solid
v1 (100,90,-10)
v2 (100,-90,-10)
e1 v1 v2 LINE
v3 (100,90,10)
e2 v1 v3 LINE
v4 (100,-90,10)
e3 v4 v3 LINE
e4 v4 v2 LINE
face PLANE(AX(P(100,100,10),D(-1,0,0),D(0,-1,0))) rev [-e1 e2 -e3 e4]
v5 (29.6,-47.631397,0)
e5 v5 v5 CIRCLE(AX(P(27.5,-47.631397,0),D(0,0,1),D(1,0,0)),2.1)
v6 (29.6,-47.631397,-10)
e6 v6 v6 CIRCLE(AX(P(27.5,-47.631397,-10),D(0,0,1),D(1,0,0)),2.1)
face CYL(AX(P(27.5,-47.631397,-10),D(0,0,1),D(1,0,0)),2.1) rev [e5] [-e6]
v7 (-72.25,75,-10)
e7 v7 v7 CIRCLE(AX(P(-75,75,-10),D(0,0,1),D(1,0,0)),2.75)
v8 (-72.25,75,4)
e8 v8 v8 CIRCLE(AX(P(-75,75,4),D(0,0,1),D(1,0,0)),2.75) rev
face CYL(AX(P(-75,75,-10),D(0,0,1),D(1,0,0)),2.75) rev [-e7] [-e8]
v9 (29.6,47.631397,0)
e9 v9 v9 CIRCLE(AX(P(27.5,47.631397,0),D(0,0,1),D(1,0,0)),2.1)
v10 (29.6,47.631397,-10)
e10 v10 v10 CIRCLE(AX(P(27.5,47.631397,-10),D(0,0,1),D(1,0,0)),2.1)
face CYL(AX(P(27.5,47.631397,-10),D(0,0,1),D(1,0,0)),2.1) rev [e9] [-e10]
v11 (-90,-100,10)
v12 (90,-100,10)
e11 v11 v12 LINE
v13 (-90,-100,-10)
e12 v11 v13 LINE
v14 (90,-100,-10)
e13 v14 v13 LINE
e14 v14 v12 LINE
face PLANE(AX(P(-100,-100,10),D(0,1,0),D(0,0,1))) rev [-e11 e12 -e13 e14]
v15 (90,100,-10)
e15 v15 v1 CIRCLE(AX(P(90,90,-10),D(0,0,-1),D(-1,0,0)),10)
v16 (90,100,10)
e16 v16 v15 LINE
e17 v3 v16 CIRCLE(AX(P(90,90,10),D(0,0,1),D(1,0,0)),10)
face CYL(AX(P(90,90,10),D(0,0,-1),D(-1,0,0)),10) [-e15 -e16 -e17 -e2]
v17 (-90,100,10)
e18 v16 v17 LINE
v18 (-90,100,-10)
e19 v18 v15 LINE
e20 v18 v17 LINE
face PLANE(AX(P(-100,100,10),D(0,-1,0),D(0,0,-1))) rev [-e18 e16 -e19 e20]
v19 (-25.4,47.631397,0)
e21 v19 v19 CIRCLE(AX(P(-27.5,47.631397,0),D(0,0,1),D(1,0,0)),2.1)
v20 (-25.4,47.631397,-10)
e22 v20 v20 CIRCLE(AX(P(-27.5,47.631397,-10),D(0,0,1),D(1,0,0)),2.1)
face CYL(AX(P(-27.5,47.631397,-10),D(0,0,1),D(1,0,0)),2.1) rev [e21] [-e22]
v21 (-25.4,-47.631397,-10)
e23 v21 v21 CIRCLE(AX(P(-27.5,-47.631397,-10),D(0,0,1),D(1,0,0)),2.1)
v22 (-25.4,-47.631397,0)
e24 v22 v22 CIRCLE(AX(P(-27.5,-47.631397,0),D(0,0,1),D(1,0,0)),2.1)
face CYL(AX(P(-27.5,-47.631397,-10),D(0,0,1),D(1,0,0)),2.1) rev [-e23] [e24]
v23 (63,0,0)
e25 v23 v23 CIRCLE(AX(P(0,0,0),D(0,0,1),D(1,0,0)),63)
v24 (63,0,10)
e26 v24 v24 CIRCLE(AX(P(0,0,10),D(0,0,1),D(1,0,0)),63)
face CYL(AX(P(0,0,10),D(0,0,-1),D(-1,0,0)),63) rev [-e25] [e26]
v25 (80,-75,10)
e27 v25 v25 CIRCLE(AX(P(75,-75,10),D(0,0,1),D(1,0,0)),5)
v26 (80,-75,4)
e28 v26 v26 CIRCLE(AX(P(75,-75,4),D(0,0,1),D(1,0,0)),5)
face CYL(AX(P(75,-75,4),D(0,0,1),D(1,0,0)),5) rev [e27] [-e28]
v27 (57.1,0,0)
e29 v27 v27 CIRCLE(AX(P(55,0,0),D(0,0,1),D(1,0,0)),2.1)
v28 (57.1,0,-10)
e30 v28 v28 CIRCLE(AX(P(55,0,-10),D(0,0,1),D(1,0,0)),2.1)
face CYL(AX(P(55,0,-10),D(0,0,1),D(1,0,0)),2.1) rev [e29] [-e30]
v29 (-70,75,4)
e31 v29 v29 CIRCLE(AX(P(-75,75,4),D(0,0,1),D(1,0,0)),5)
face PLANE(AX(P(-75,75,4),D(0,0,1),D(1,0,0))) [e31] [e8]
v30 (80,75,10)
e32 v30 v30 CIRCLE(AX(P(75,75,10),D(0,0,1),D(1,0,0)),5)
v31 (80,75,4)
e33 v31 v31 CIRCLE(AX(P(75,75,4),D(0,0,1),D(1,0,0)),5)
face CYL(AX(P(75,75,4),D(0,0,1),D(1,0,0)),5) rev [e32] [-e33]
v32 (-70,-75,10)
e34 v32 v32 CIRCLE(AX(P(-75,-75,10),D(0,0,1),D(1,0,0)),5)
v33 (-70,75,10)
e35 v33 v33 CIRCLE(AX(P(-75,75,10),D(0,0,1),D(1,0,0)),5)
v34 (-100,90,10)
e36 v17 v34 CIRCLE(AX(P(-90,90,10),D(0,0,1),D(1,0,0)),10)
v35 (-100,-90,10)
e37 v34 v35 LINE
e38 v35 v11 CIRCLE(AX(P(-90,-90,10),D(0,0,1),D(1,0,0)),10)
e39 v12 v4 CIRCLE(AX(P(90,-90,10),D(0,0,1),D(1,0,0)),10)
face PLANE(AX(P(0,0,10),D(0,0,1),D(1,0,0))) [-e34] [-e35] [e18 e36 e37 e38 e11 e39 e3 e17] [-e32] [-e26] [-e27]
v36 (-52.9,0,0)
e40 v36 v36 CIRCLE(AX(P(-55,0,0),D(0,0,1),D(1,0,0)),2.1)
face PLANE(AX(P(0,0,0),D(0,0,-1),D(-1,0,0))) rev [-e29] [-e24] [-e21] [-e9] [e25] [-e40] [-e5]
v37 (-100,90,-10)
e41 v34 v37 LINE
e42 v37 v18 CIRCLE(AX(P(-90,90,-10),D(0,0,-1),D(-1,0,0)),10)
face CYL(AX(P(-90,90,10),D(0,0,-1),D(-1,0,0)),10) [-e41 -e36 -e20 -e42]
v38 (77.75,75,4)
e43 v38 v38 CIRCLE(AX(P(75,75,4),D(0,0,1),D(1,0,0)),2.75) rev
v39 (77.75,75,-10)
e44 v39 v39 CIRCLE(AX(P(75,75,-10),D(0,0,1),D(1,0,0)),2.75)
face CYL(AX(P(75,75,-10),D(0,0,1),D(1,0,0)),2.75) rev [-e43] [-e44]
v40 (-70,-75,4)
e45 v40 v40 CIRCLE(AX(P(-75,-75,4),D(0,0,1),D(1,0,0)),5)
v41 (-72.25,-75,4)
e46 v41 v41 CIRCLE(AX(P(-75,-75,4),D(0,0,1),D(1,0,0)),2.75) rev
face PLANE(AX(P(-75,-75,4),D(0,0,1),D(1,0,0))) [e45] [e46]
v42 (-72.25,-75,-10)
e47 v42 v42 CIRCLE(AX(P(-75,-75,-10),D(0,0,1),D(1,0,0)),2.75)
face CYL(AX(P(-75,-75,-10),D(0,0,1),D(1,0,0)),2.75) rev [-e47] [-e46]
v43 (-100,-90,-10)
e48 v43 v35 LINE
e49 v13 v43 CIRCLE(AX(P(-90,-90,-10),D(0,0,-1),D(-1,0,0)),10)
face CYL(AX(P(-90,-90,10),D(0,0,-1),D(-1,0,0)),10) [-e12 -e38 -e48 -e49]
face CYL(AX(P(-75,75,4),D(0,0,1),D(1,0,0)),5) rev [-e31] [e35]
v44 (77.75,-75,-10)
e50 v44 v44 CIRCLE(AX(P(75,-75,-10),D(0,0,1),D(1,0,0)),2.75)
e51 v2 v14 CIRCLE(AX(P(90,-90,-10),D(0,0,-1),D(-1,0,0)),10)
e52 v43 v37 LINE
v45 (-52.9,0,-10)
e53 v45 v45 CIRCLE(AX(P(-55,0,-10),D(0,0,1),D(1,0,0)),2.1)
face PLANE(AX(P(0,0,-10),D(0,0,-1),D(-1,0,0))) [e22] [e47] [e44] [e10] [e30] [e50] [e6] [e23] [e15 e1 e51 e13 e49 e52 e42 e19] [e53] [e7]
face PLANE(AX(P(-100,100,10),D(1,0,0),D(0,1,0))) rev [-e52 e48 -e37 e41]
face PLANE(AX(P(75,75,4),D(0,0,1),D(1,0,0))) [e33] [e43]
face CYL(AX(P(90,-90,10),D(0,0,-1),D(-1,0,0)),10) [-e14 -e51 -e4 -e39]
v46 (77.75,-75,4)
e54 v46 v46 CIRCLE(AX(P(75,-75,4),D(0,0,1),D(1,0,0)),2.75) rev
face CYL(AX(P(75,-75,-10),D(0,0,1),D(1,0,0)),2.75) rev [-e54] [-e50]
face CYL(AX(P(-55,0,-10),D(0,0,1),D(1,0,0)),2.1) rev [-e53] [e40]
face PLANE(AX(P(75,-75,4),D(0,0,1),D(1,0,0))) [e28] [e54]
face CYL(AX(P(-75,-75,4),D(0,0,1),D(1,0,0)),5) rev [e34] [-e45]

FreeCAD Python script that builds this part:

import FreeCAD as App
import Part
import Sketcher


def edges_at(feature, points):
    """Names of the edges that pass closest to the given points."""
    edges = feature.Shape.Edges
    near = lambda p: min(range(len(edges)), key=lambda i: edges[i].distToShape(Part.Vertex(*p))[0])
    return sorted({f"Edge{near(p) + 1}" for p in points})

doc = App.newDocument("Part")
body = doc.addObject("PartDesign::Body", "Body")

# Sketch on XY plane
sketch1 = body.newObject("Sketcher::SketchObject", "Sketch")
sketch1.AttachmentSupport = (doc.getObject("XY_Plane"), [""])
sketch1.MapMode = "FlatFace"
sketch1.addGeometry([
    Part.LineSegment(App.Vector(-100, 100, 0), App.Vector(-100, -100, 0)),  # 0
    Part.LineSegment(App.Vector(-100, -100, 0), App.Vector(100, -100, 0)),  # 1
    Part.LineSegment(App.Vector(100, -100, 0), App.Vector(100, 100, 0)),  # 2
    Part.LineSegment(App.Vector(100, 100, 0), App.Vector(-100, 100, 0)),  # 3
    Part.Circle(App.Vector(0, 0, 0), App.Vector(0, 0, 1), 63),  # 4
], False)
sketch1.addConstraint([
    Sketcher.Constraint("Coincident", 0, 2, 1, 1),
    Sketcher.Constraint("Coincident", 1, 2, 2, 1),
    Sketcher.Constraint("Coincident", 2, 2, 3, 1),
    Sketcher.Constraint("Coincident", 3, 2, 0, 1),
    Sketcher.Constraint("Vertical", 0),
    Sketcher.Constraint("Horizontal", 1),
    Sketcher.Constraint("Vertical", 2),
    Sketcher.Constraint("Horizontal", 3),
    Sketcher.Constraint("Coincident", 4, 3, -1, 1),
    Sketcher.Constraint("Symmetric", 0, 2, 2, 2, -1, 1),
    Sketcher.Constraint("Equal", 3, 0),
    Sketcher.Constraint("Diameter", 4, 126.0),
    Sketcher.Constraint("DistanceX", 1, 1, 1, 2, 200.0),
])
pad1 = body.newObject("PartDesign::Pad", "Pad")
pad1.Profile = sketch1
pad1.Length = 10

# Sketch on XY plane
sketch2 = body.newObject("Sketcher::SketchObject", "Sketch001")
sketch2.AttachmentSupport = (doc.getObject("XY_Plane"), [""])
sketch2.MapMode = "FlatFace"
sketch2.addGeometry([
    Part.LineSegment(App.Vector(100, 100, 0), App.Vector(100, -100, 0)),
    Part.LineSegment(App.Vector(100, -100, 0), App.Vector(-100, -100, 0)),
    Part.LineSegment(App.Vector(-100, -100, 0), App.Vector(-100, 100, 0)),
    Part.LineSegment(App.Vector(-100, 100, 0), App.Vector(100, 100, 0)),
], False)
sketch2.addConstraint([
    Sketcher.Constraint("Coincident", 0, 2, 1, 1),
    Sketcher.Constraint("Coincident", 1, 2, 2, 1),
    Sketcher.Constraint("Coincident", 2, 2, 3, 1),
    Sketcher.Constraint("Coincident", 3, 2, 0, 1),
    Sketcher.Constraint("Vertical", 0),
    Sketcher.Constraint("Horizontal", 1),
    Sketcher.Constraint("Vertical", 2),
    Sketcher.Constraint("Horizontal", 3),
    Sketcher.Constraint("Symmetric", 0, 2, 2, 2, -1, 1),
    Sketcher.Constraint("Equal", 3, 0),
    Sketcher.Constraint("DistanceX", 1, 2, 1, 1, 200.0),
])
pad2 = body.newObject("PartDesign::Pad", "Pad001")
pad2.Profile = sketch2
pad2.Length = 10
pad2.Reversed = True

# Sketch on XY plane
sketch3 = body.newObject("Sketcher::SketchObject", "Sketch002")
sketch3.AttachmentSupport = (doc.getObject("XY_Plane"), [""])
sketch3.MapMode = "FlatFace"
sketch3.addGeometry([
    Part.Circle(App.Vector(27.5, -47.6, 0), App.Vector(0, 0, 1), 2.1),  # 0
    Part.Circle(App.Vector(-27.5, -47.6, 0), App.Vector(0, 0, 1), 2.1),  # 1
    Part.Circle(App.Vector(-55, 0, 0), App.Vector(0, 0, 1), 2.1),  # 2
    Part.Circle(App.Vector(-27.5, 47.6, 0), App.Vector(0, 0, 1), 2.1),  # 3
    Part.Circle(App.Vector(27.5, 47.6, 0), App.Vector(0, 0, 1), 2.1),  # 4
    Part.Circle(App.Vector(55, 0, 0), App.Vector(0, 0, 1), 2.1),  # 5
], False)
sketch3.addConstraint([
    Sketcher.Constraint("Equal", 0, 1),
    Sketcher.Constraint("Equal", 1, 2),
    Sketcher.Constraint("Equal", 2, 3),
    Sketcher.Constraint("Equal", 3, 4),
    Sketcher.Constraint("Equal", 4, 5),
    Sketcher.Constraint("Symmetric", 0, 3, 3, 3, -1, 1),
    Sketcher.Constraint("Symmetric", 1, 3, 4, 3, -1, 1),
    Sketcher.Constraint("Symmetric", 2, 3, 5, 3, -1, 1),
    Sketcher.Constraint("Symmetric", 0, 3, 1, 3, -2),
    Sketcher.Constraint("PointOnObject", 2, 3, -1),
    Sketcher.Constraint("Diameter", 0, 4.2),
    Sketcher.Constraint("DistanceX", 2, 3, -1, 1, 55.0),
    Sketcher.Constraint("DistanceX", 1, 3, 0, 3, 55.0),
    Sketcher.Constraint("DistanceY", 0, 3, -1, 1, 47.631397),
])
pocket1 = body.newObject("PartDesign::Pocket", "Pocket")
pocket1.Profile = sketch3
pocket1.Length = 10

# Sketch on XY plane
sketch4 = body.newObject("Sketcher::SketchObject", "Sketch003")
sketch4.AttachmentSupport = (doc.getObject("XY_Plane"), [""])
sketch4.MapMode = "FlatFace"
sketch4.AttachmentOffset = App.Placement(App.Vector(0, 0, 10), App.Rotation())
sketch4.addGeometry([
    Part.Circle(App.Vector(75, 75, 0), App.Vector(0, 0, 1), 2.8),
    Part.Circle(App.Vector(75, -75, 0), App.Vector(0, 0, 1), 2.8),
    Part.Circle(App.Vector(-75, -75, 0), App.Vector(0, 0, 1), 2.8),
    Part.Circle(App.Vector(-75, 75, 0), App.Vector(0, 0, 1), 2.8),
], False)
sketch4.addConstraint([
    Sketcher.Constraint("Equal", 0, 1),
    Sketcher.Constraint("Equal", 1, 2),
    Sketcher.Constraint("Equal", 2, 3),
    Sketcher.Constraint("Symmetric", 0, 3, 2, 3, -1, 1),
    Sketcher.Constraint("Symmetric", 1, 3, 3, 3, -1, 1),
    Sketcher.Constraint("Symmetric", 1, 3, 2, 3, -2),
    Sketcher.Constraint("Diameter", 0, 5.5),
    Sketcher.Constraint("DistanceX", -1, 1, 0, 3, 75.0),
    Sketcher.Constraint("DistanceY", -1, 1, 0, 3, 75.0),
])
pocket2 = body.newObject("PartDesign::Pocket", "Pocket001")
pocket2.Profile = sketch4
pocket2.Type = "ThroughAll"

# Sketch on XY plane
sketch5 = body.newObject("Sketcher::SketchObject", "Sketch004")
sketch5.AttachmentSupport = (doc.getObject("XY_Plane"), [""])
sketch5.MapMode = "FlatFace"
sketch5.AttachmentOffset = App.Placement(App.Vector(0, 0, 10), App.Rotation())
sketch5.addGeometry([
    Part.Circle(App.Vector(75, -75, 0), App.Vector(0, 0, 1), 5),
    Part.Circle(App.Vector(-75, -75, 0), App.Vector(0, 0, 1), 5),
    Part.Circle(App.Vector(-75, 75, 0), App.Vector(0, 0, 1), 5),
    Part.Circle(App.Vector(75, 75, 0), App.Vector(0, 0, 1), 5),
], False)
sketch5.addConstraint([
    Sketcher.Constraint("Equal", 0, 1),
    Sketcher.Constraint("Equal", 1, 2),
    Sketcher.Constraint("Equal", 2, 3),
    Sketcher.Constraint("Symmetric", 0, 3, 2, 3, -1, 1),
    Sketcher.Constraint("Symmetric", 1, 3, 3, 3, -1, 1),
    Sketcher.Constraint("Symmetric", 0, 3, 1, 3, -2),
    Sketcher.Constraint("Diameter", 0, 10.0),
    Sketcher.Constraint("DistanceX", -1, 1, 0, 3, 75.0),
    Sketcher.Constraint("DistanceY", 0, 3, -1, 1, 75.0),
])
pocket3 = body.newObject("PartDesign::Pocket", "Pocket002")
pocket3.Profile = sketch5
pocket3.Length = 6
doc.recompute()

fillet = body.newObject("PartDesign::Fillet", "Fillet")
fillet.Base = (pocket3, edges_at(pocket3, [
    (100, -100, 0),
    (-100, -100, 0),
    (-100, 100, 0),
    (100, 100, 0),
]))
fillet.Radius = 10

doc.recompute()
